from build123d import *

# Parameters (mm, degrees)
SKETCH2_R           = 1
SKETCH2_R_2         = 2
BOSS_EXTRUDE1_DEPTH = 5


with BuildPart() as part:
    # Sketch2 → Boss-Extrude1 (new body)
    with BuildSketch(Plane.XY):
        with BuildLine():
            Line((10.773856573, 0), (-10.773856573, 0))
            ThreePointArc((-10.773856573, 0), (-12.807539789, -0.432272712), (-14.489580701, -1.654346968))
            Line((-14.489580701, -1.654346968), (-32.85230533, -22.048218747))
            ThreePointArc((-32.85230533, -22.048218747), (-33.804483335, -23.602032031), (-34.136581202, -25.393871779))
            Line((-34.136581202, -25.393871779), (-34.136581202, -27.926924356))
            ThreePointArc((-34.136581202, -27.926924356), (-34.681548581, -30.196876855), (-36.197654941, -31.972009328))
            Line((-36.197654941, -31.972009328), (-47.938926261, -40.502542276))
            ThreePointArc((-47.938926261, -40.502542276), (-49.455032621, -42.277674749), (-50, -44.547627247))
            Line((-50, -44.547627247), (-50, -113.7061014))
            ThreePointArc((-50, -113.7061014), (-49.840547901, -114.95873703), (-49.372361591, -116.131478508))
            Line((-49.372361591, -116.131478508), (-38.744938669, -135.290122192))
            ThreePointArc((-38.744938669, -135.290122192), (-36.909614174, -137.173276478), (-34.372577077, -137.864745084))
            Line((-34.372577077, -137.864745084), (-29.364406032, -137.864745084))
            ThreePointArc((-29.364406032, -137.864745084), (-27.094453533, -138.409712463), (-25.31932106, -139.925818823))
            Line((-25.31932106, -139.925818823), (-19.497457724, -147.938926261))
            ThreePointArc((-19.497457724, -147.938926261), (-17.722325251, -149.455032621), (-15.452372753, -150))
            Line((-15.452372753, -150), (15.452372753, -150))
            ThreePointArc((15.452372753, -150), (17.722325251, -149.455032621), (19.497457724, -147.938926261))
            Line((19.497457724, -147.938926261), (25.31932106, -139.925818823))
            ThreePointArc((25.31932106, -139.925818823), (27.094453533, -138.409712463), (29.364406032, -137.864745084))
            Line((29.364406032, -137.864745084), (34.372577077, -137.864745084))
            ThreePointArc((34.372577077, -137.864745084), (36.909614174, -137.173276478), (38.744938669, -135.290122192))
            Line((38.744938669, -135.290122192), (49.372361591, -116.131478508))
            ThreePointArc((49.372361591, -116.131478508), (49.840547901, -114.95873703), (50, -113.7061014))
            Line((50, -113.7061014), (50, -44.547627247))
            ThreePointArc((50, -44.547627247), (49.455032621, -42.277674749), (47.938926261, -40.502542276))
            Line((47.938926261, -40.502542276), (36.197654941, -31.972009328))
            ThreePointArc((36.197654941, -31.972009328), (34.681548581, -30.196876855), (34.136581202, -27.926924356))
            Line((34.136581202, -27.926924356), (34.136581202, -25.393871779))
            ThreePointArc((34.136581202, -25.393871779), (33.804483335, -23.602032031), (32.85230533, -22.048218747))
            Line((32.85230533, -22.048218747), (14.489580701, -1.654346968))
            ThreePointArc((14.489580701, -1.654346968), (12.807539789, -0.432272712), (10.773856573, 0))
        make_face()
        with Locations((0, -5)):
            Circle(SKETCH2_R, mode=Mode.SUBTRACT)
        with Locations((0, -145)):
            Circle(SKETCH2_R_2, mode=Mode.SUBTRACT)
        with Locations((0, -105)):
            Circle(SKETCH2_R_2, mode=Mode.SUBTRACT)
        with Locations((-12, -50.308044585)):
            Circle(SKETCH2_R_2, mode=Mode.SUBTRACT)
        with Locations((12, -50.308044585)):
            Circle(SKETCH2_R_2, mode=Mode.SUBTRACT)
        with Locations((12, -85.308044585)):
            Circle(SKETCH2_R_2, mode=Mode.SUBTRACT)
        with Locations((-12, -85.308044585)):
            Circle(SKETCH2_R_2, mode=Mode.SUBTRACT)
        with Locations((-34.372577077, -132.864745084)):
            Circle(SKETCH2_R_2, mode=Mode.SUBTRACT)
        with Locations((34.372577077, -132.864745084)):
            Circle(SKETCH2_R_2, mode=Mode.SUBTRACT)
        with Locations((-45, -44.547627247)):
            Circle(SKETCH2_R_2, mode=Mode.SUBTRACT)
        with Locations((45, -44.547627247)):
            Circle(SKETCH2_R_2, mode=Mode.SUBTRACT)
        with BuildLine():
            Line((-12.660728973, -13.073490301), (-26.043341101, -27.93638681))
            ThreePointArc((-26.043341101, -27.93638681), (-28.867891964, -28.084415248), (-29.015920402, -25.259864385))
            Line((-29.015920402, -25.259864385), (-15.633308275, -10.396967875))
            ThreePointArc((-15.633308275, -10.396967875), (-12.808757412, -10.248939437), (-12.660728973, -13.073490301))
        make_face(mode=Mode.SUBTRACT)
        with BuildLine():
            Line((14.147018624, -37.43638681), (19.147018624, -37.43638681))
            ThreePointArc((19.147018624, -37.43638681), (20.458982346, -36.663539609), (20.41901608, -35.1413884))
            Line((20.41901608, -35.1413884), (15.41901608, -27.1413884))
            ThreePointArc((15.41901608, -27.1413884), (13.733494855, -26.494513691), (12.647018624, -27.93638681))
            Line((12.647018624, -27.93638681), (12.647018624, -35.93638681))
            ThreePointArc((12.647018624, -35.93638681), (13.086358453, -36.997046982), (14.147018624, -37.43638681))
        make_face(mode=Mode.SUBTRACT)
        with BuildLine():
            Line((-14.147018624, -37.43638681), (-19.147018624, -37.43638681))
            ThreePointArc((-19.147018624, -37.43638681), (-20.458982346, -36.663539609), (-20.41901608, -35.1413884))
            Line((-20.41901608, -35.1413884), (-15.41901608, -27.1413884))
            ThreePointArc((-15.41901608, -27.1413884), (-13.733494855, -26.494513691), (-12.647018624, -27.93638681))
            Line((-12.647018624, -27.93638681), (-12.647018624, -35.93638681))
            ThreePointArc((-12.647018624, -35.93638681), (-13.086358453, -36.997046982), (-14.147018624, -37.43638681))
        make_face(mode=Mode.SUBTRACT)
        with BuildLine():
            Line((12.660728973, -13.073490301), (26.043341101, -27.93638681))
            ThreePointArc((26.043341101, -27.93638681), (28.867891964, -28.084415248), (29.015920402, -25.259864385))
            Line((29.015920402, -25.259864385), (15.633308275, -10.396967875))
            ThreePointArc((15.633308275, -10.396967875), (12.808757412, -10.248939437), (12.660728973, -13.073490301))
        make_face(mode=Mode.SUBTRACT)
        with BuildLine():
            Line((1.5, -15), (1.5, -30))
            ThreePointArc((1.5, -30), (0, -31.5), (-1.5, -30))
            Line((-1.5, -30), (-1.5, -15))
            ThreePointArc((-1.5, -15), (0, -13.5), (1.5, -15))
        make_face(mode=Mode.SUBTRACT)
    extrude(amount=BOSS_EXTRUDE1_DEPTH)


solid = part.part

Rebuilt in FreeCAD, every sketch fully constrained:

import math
import FreeCAD as App
import Part
import Sketcher
Q = App.Units.Quantity

doc = App.newDocument("Part")
body = doc.addObject("PartDesign::Body", "Body")

# Sketch on XY plane
sketch1 = body.newObject("Sketcher::SketchObject", "Sketch")
sketch1.AttachmentSupport = (doc.getObject("XY_Plane"), [""])
sketch1.MapMode = "FlatFace"
sketch1.addGeometry([
    Part.LineSegment(App.Vector(10.773857, 0, 0), App.Vector(-10.773857, 0, 0)),  # 0
    Part.ArcOfCircle(Part.Circle(App.Vector(-10.773857, -5, 0), App.Vector(0, 0, 1), 5), math.radians(90), math.radians(138)),  # 1
    Part.LineSegment(App.Vector(-14.489581, -1.654347, 0), App.Vector(-32.852305, -22.048219, 0)),  # 2
    Part.ArcOfCircle(Part.Circle(App.Vector(-29.136581, -25.393872, 0), App.Vector(0, 0, 1), 5), math.radians(138), math.radians(180)),  # 3
    Part.LineSegment(App.Vector(-34.136581, -25.393872, 0), App.Vector(-34.136581, -27.926924, 0)),  # 4
    Part.ArcOfCircle(Part.Circle(App.Vector(-39.136581, -27.926924, 0), App.Vector(0, 0, 1), 5), math.radians(-54), math.radians(0)),  # 5
    Part.LineSegment(App.Vector(-36.197655, -31.972009, 0), App.Vector(-47.938926, -40.502542, 0)),  # 6
    Part.ArcOfCircle(Part.Circle(App.Vector(-45, -44.547627, 0), App.Vector(0, 0, 1), 5), math.radians(126), math.radians(180)),  # 7
    Part.LineSegment(App.Vector(-50, -44.547627, 0), App.Vector(-50, -113.706101, 0)),  # 8
    Part.ArcOfCircle(Part.Circle(App.Vector(-45, -113.706101, 0), App.Vector(0, 0, 1), 5), math.radians(180), math.radians(209.017414)),  # 9
    Part.LineSegment(App.Vector(-49.372362, -116.131479, 0), App.Vector(-38.744939, -135.290122, 0)),  # 10
    Part.ArcOfCircle(Part.Circle(App.Vector(-34.372577, -132.864745, 0), App.Vector(0, 0, 1), 5), math.radians(-150.982586), math.radians(-90)),  # 11
    Part.LineSegment(App.Vector(-34.372577, -137.864745, 0), App.Vector(-29.364406, -137.864745, 0)),  # 12
    Part.ArcOfCircle(Part.Circle(App.Vector(-29.364406, -142.864745, 0), App.Vector(0, 0, 1), 5), math.radians(36), math.radians(90)),  # 13
    Part.LineSegment(App.Vector(-25.319321, -139.925819, 0), App.Vector(-19.497458, -147.938926, 0)),  # 14
    Part.ArcOfCircle(Part.Circle(App.Vector(-15.452373, -145, 0), App.Vector(0, 0, 1), 5), math.radians(-144), math.radians(-90)),  # 15
    Part.LineSegment(App.Vector(-15.452373, -150, 0), App.Vector(15.452373, -150, 0)),  # 16
    Part.ArcOfCircle(Part.Circle(App.Vector(15.452373, -145, 0), App.Vector(0, 0, 1), 5), math.radians(-90), math.radians(-36)),  # 17
    Part.LineSegment(App.Vector(19.497458, -147.938926, 0), App.Vector(25.319321, -139.925819, 0)),  # 18
    Part.ArcOfCircle(Part.Circle(App.Vector(29.364406, -142.864745, 0), App.Vector(0, 0, 1), 5), math.radians(90), math.radians(144)),  # 19
    Part.LineSegment(App.Vector(29.364406, -137.864745, 0), App.Vector(34.372577, -137.864745, 0)),  # 20
    Part.ArcOfCircle(Part.Circle(App.Vector(34.372577, -132.864745, 0), App.Vector(0, 0, 1), 5), math.radians(-90), math.radians(-29.017414)),  # 21
    Part.LineSegment(App.Vector(38.744939, -135.290122, 0), App.Vector(49.372362, -116.131479, 0)),  # 22
    Part.ArcOfCircle(Part.Circle(App.Vector(45, -113.706101, 0), App.Vector(0, 0, 1), 5), math.radians(-29.017414), math.radians(0)),  # 23
    Part.LineSegment(App.Vector(50, -113.706101, 0), App.Vector(50, -44.547627, 0)),  # 24
    Part.ArcOfCircle(Part.Circle(App.Vector(45, -44.547627, 0), App.Vector(0, 0, 1), 5), math.radians(0), math.radians(54)),  # 25
    Part.LineSegment(App.Vector(47.938926, -40.502542, 0), App.Vector(36.197655, -31.972009, 0)),  # 26
    Part.ArcOfCircle(Part.Circle(App.Vector(39.136581, -27.926924, 0), App.Vector(0, 0, 1), 5), math.radians(180), math.radians(234)),  # 27
    Part.LineSegment(App.Vector(34.136581, -27.926924, 0), App.Vector(34.136581, -25.393872, 0)),  # 28
    Part.ArcOfCircle(Part.Circle(App.Vector(29.136581, -25.393872, 0), App.Vector(0, 0, 1), 5), math.radians(0), math.radians(42)),  # 29
    Part.LineSegment(App.Vector(32.852305, -22.048219, 0), App.Vector(14.489581, -1.654347, 0)),  # 30
    Part.ArcOfCircle(Part.Circle(App.Vector(10.773857, -5, 0), App.Vector(0, 0, 1), 5), math.radians(42), math.radians(90)),  # 31
    Part.Circle(App.Vector(-34.372577, -132.864745, 0), App.Vector(0, 0, 1), 2),  # 32
    Part.Circle(App.Vector(-12, -85.308045, 0), App.Vector(0, 0, 1), 2),  # 33
    Part.Circle(App.Vector(0, -145, 0), App.Vector(0, 0, 1), 2),  # 34
    Part.Circle(App.Vector(34.372577, -132.864745, 0), App.Vector(0, 0, 1), 2),  # 35
    Part.Circle(App.Vector(0, -105, 0), App.Vector(0, 0, 1), 2),  # 36
    Part.Circle(App.Vector(12, -85.308045, 0), App.Vector(0, 0, 1), 2),  # 37
    Part.Circle(App.Vector(-45, -44.547627, 0), App.Vector(0, 0, 1), 2),  # 38
    Part.Circle(App.Vector(-12, -50.308045, 0), App.Vector(0, 0, 1), 2),  # 39
    Part.ArcOfCircle(Part.Circle(App.Vector(-14.147019, -35.936387, 0), App.Vector(0, 0, 1), 1.5), math.radians(-90), math.radians(0)),  # 40
    Part.LineSegment(App.Vector(-14.147019, -37.436387, 0), App.Vector(-19.147019, -37.436387, 0)),  # 41
    Part.ArcOfCircle(Part.Circle(App.Vector(-19.147019, -35.936387, 0), App.Vector(0, 0, 1), 1.5), math.radians(147.994617), math.radians(270)),  # 42
    Part.LineSegment(App.Vector(-20.419016, -35.141388, 0), App.Vector(-15.419016, -27.141388, 0)),  # 43
    Part.ArcOfCircle(Part.Circle(App.Vector(-14.147019, -27.936387, 0), App.Vector(0, 0, 1), 1.5), math.radians(0), math.radians(147.994617)),  # 44
    Part.LineSegment(App.Vector(-12.647019, -27.936387, 0), App.Vector(-12.647019, -35.936387, 0)),  # 45
    Part.ArcOfCircle(Part.Circle(App.Vector(-14.147019, -11.735229, 0), App.Vector(0, 0, 1), 2), math.radians(-42), math.radians(138)),  # 46
    Part.LineSegment(App.Vector(-12.660729, -13.07349, 0), App.Vector(-26.043341, -27.936387, 0)),  # 47
    Part.ArcOfCircle(Part.Circle(App.Vector(-27.529631, -26.598126, 0), App.Vector(0, 0, 1), 2), math.radians(138), math.radians(318)),  # 48
    Part.LineSegment(App.Vector(-29.01592, -25.259864, 0), App.Vector(-15.633308, -10.396968, 0)),  # 49
    Part.Circle(App.Vector(12, -50.308045, 0), App.Vector(0, 0, 1), 2),  # 50
    Part.Circle(App.Vector(45, -44.547627, 0), App.Vector(0, 0, 1), 2),  # 51
    Part.ArcOfCircle(Part.Circle(App.Vector(0, -15, 0), App.Vector(0, 0, 1), 1.5), math.radians(0), math.radians(180)),  # 52
    Part.LineSegment(App.Vector(1.5, -15, 0), App.Vector(1.5, -30, 0)),  # 53
    Part.ArcOfCircle(Part.Circle(App.Vector(0, -30, 0), App.Vector(0, 0, 1), 1.5), math.radians(180), math.radians(360)),  # 54
    Part.LineSegment(App.Vector(-1.5, -30, 0), App.Vector(-1.5, -15, 0)),  # 55
    Part.LineSegment(App.Vector(19.147019, -37.436387, 0), App.Vector(14.147019, -37.436387, 0)),  # 56
    Part.ArcOfCircle(Part.Circle(App.Vector(14.147019, -35.936387, 0), App.Vector(0, 0, 1), 1.5), math.radians(-180), math.radians(-90)),  # 57
    Part.LineSegment(App.Vector(12.647019, -35.936387, 0), App.Vector(12.647019, -27.936387, 0)),  # 58
    Part.ArcOfCircle(Part.Circle(App.Vector(14.147019, -27.936387, 0), App.Vector(0, 0, 1), 1.5), math.radians(32.005383), math.radians(180)),  # 59
    Part.LineSegment(App.Vector(15.419016, -27.141388, 0), App.Vector(20.419016, -35.141388, 0)),  # 60
    Part.ArcOfCircle(Part.Circle(App.Vector(19.147019, -35.936387, 0), App.Vector(0, 0, 1), 1.5), math.radians(-90), math.radians(32.005383)),  # 61
    Part.Circle(App.Vector(0, -5, 0), App.Vector(0, 0, 1), 1),  # 62
    Part.LineSegment(App.Vector(26.043341, -27.936387, 0), App.Vector(12.660729, -13.07349, 0)),  # 63
    Part.ArcOfCircle(Part.Circle(App.Vector(14.147019, -11.735229, 0), App.Vector(0, 0, 1), 2), math.radians(42), math.radians(222)),  # 64
    Part.LineSegment(App.Vector(15.633308, -10.396968, 0), App.Vector(29.01592, -25.259864, 0)),  # 65
    Part.ArcOfCircle(Part.Circle(App.Vector(27.529631, -26.598126, 0), App.Vector(0, 0, 1), 2), math.radians(-138), math.radians(42)),  # 66
], False)
sketch1.addConstraint([
    Sketcher.Constraint("Tangent", 0, 2, 1, 1),
    Sketcher.Constraint("Tangent", 1, 2, 2, 1),
    Sketcher.Constraint("Tangent", 2, 2, 3, 1),
    Sketcher.Constraint("Tangent", 3, 2, 4, 1),
    Sketcher.Constraint("Tangent", 4, 2, 5, 2),
    Sketcher.Constraint("Tangent", 5, 1, 6, 1),
    Sketcher.Constraint("Tangent", 6, 2, 7, 1),
    Sketcher.Constraint("Tangent", 7, 2, 8, 1),
    Sketcher.Constraint("Tangent", 8, 2, 9, 1),
    Sketcher.Constraint("Tangent", 9, 2, 10, 1),
    Sketcher.Constraint("Tangent", 10, 2, 11, 1),
    Sketcher.Constraint("Tangent", 11, 2, 12, 1),
    Sketcher.Constraint("Tangent", 12, 2, 13, 2),
    Sketcher.Constraint("Tangent", 13, 1, 14, 1),
    Sketcher.Constraint("Tangent", 14, 2, 15, 1),
    Sketcher.Constraint("Tangent", 15, 2, 16, 1),
    Sketcher.Constraint("Tangent", 16, 2, 17, 1),
    Sketcher.Constraint("Tangent", 17, 2, 18, 1),
    Sketcher.Constraint("Tangent", 18, 2, 19, 2),
    Sketcher.Constraint("Tangent", 19, 1, 20, 1),
    Sketcher.Constraint("Tangent", 20, 2, 21, 1),
    Sketcher.Constraint("Tangent", 21, 2, 22, 1),
    Sketcher.Constraint("Tangent", 22, 2, 23, 1),
    Sketcher.Constraint("Tangent", 23, 2, 24, 1),
    Sketcher.Constraint("Tangent", 24, 2, 25, 1),
    Sketcher.Constraint("Tangent", 25, 2, 26, 1),
    Sketcher.Constraint("Tangent", 26, 2, 27, 2),
    Sketcher.Constraint("Tangent", 27, 1, 28, 1),
    Sketcher.Constraint("Tangent", 28, 2, 29, 1),
    Sketcher.Constraint("Tangent", 29, 2, 30, 1),
    Sketcher.Constraint("Tangent", 30, 2, 31, 1),
    Sketcher.Constraint("Tangent", 31, 2, 0, 1),
    Sketcher.Constraint("Tangent", 40, 1, 41, 1),
    Sketcher.Constraint("Tangent", 41, 2, 42, 2),
    Sketcher.Constraint("Tangent", 42, 1, 43, 1),
    Sketcher.Constraint("Tangent", 43, 2, 44, 2),
    Sketcher.Constraint("Tangent", 44, 1, 45, 1),
    Sketcher.Constraint("Tangent", 45, 2, 40, 2),
    Sketcher.Constraint("Tangent", 46, 1, 47, 1),
    Sketcher.Constraint("Tangent", 47, 2, 48, 2),
    Sketcher.Constraint("Tangent", 48, 1, 49, 1),
    Sketcher.Constraint("Tangent", 49, 2, 46, 2),
    Sketcher.Constraint("Tangent", 52, 1, 53, 1),
    Sketcher.Constraint("Tangent", 53, 2, 54, 2),
    Sketcher.Constraint("Tangent", 54, 1, 55, 1),
    Sketcher.Constraint("Tangent", 55, 2, 52, 2),
    Sketcher.Constraint("Tangent", 56, 2, 57, 2),
    Sketcher.Constraint("Tangent", 57, 1, 58, 1),
    Sketcher.Constraint("Tangent", 58, 2, 59, 2),
    Sketcher.Constraint("Tangent", 59, 1, 60, 1),
    Sketcher.Constraint("Tangent", 60, 2, 61, 2),
    Sketcher.Constraint("Tangent", 61, 1, 56, 1),
    Sketcher.Constraint("Tangent", 63, 2, 64, 2),
    Sketcher.Constraint("Tangent", 64, 1, 65, 1),
    Sketcher.Constraint("Tangent", 65, 2, 66, 2),
    Sketcher.Constraint("Tangent", 66, 1, 63, 1),
    Sketcher.Constraint("Horizontal", 0),
    Sketcher.Constraint("Vertical", 4),
    Sketcher.Constraint("Vertical", 8),
    Sketcher.Constraint("Horizontal", 12),
    Sketcher.Constraint("Horizontal", 16),
    Sketcher.Constraint("Horizontal", 20),
    Sketcher.Constraint("Vertical", 24),
    Sketcher.Constraint("Vertical", 28),
    Sketcher.Constraint("Horizontal", 41),
    Sketcher.Constraint("Vertical", 45),
    Sketcher.Constraint("Vertical", 53),
    Sketcher.Constraint("Vertical", 55),
    Sketcher.Constraint("Horizontal", 56),
    Sketcher.Constraint("Vertical", 58),
    Sketcher.Constraint("Coincident", 32, 3, 11, 3),
    Sketcher.Constraint("Coincident", 35, 3, 21, 3),
    Sketcher.Constraint("Coincident", 38, 3, 7, 3),
    Sketcher.Constraint("Coincident", 51, 3, 25, 3),
    Sketcher.Constraint("Equal", 1, 3),
    Sketcher.Constraint("Equal", 3, 5),
    Sketcher.Constraint("Equal", 5, 7),
    Sketcher.Constraint("Equal", 7, 9),
    Sketcher.Constraint("Equal", 9, 11),
    Sketcher.Constraint("Equal", 11, 13),
    Sketcher.Constraint("Equal", 13, 15),
    Sketcher.Constraint("Equal", 15, 17),
    Sketcher.Constraint("Equal", 17, 19),
    Sketcher.Constraint("Equal", 19, 21),
    Sketcher.Constraint("Equal", 21, 23),
    Sketcher.Constraint("Equal", 23, 25),
    Sketcher.Constraint("Equal", 25, 27),
    Sketcher.Constraint("Equal", 27, 29),
    Sketcher.Constraint("Equal", 29, 31),
    Sketcher.Constraint("Equal", 32, 33),
    Sketcher.Constraint("Equal", 33, 34),
    Sketcher.Constraint("Equal", 34, 35),
    Sketcher.Constraint("Equal", 35, 36),
    Sketcher.Constraint("Equal", 36, 37),
    Sketcher.Constraint("Equal", 37, 38),
    Sketcher.Constraint("Equal", 38, 39),
    Sketcher.Constraint("Equal", 40, 42),
    Sketcher.Constraint("Equal", 42, 44),
    Sketcher.Constraint("Equal", 39, 46),
    Sketcher.Constraint("Equal", 46, 48),
    Sketcher.Constraint("Equal", 48, 50),
    Sketcher.Constraint("Equal", 50, 51),
    Sketcher.Constraint("Equal", 44, 52),
    Sketcher.Constraint("Equal", 54, 57),
    Sketcher.Constraint("Equal", 57, 59),
    Sketcher.Constraint("Equal", 59, 61),
    Sketcher.Constraint("Equal", 51, 64),
    Sketcher.Constraint("Equal", 64, 66),
    Sketcher.Constraint("Symmetric", 0, 2, 31, 2, -1, 1),
    Sketcher.Constraint("Symmetric", 13, 3, 19, 3, -2),
    Sketcher.Constraint("Symmetric", 9, 3, 23, 3, -2),
    Sketcher.Constraint("Symmetric", 5, 3, 27, 3, -2),
    Sketcher.Constraint("Symmetric", 33, 3, 37, 3, -2),
    Sketcher.Constraint("Symmetric", 39, 3, 50, 3, -2),
    Sketcher.Constraint("Symmetric", 40, 3, 57, 3, -2),
    Sketcher.Constraint("Symmetric", 46, 3, 64, 3, -2),
    Sketcher.Constraint("Symmetric", 48, 3, 66, 3, -2),
    Sketcher.Constraint("Symmetric", 43, 2, 59, 1, -2),
    Sketcher.Constraint("PointOnObject", 34, 3, -2),
    Sketcher.Constraint("PointOnObject", 36, 3, -2),
    Sketcher.Constraint("PointOnObject", 52, 3, -2),
    Sketcher.Constraint("PointOnObject", 62, 3, -2),
    Sketcher.Constraint("Perpendicular", 6, 14),
    Sketcher.Constraint("Perpendicular", 18, 26),
    Sketcher.Constraint("Parallel", 2, 47),
    Sketcher.Constraint("Parallel", 30, 63),
    Sketcher.Constraint("Horizontal", 7, 3, 25, 3),
    Sketcher.Constraint("Horizontal", 17, 3, 34, 3),
    Sketcher.Constraint("Horizontal", 31, 3, 62, 3),
    Sketcher.Constraint("Horizontal", 10, 2, 21, 2),
    Sketcher.Constraint("Horizontal", 44, 1, 47, 2),
    Sketcher.Constraint("Vertical", 33, 3, 39, 3),
    Sketcher.Constraint("Vertical", 44, 3, 46, 3),
    Sketcher.Constraint("Diameter", 32, 4.0),
    Sketcher.Constraint("Diameter", 62, 2.0),
    Sketcher.Constraint("Radius", 1, 5.0),
    Sketcher.Constraint("Radius", 40, 1.5),
    Sketcher.Constraint("DistanceX", 41, 2, 41, 1, 5.0),
    Sketcher.Constraint("DistanceY", 45, 2, 45, 1, 8.0),
    Sketcher.Constraint("DistanceY", 53, 2, 53, 1, 15.0),
    Sketcher.Constraint("Angle", 2, Q("-132 deg")),
    Sketcher.Constraint("Angle", 6, Q("-144 deg")),
    Sketcher.Constraint("Distance", 47, 20.0),
    Sketcher.Constraint("DistanceX", 7, 3, -1, 1, 45.0),
    Sketcher.Constraint("DistanceY", 15, 3, -1, 1, 145.0),
    Sketcher.Constraint("DistanceX", 33, 3, -1, 1, 12.0),
    Sketcher.Constraint("DistanceY", 36, 3, -1, 1, 105.0),
    Sketcher.Constraint("DistanceY", 52, 3, -1, 1, 15.0),
    Sketcher.Constraint("DistanceX", 12, 1, 12, 2, 5.008171),
    Sketcher.Constraint("DistanceY", 9, 3, -1, 1, 113.706101),
    Sketcher.Constraint("Distance", 2, 27.442661),
    Sketcher.Constraint("Distance", 6, 14.513009),
    Sketcher.Constraint("DistanceX", 16, 1, 16, 2, 30.904746),
    Sketcher.Constraint("DistanceY", 4, 2, 4, 1, 2.533053),
    Sketcher.Constraint("DistanceX", 40, 3, -1, 1, 14.147019),
    Sketcher.Constraint("DistanceY", 46, 3, -1, 1, 11.735229),
    Sketcher.Constraint("DistanceX", 10, 2, -1, 1, 38.744939),
    Sketcher.Constraint("DistanceY", 33, 3, -1, 1, 85.308045),
    Sketcher.Constraint("DistanceY", 39, 3, -1, 1, 50.308045),
])
pad1 = body.newObject("PartDesign::Pad", "Pad")
pad1.Profile = sketch1
pad1.Length = 5

doc.recompute()
